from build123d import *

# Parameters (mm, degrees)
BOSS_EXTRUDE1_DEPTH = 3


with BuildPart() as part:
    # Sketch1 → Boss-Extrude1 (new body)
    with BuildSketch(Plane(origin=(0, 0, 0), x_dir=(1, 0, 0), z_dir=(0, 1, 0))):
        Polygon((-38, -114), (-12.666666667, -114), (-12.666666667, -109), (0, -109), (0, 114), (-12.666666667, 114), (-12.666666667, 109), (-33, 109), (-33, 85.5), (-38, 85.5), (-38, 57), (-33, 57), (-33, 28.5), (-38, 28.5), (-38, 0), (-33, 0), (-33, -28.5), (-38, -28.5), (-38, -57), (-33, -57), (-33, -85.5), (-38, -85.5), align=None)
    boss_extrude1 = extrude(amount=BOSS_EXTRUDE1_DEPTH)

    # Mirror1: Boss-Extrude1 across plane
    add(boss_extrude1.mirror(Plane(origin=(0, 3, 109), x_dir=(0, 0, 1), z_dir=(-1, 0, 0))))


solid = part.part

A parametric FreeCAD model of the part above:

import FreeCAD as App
import Part
import Sketcher

V = App.Vector


def add_polygon(sketch, points):
    """Adds a closed chain of lines whose ends are joined by coincident constraints."""
    first, n = sketch.GeometryCount, len(points)
    for a, b in zip(points, points[1:] + points[:1]):
        sketch.addGeometry(Part.LineSegment(App.Vector(*a, 0), App.Vector(*b, 0)), False)
    for i in range(n):
        sketch.addConstraint(Sketcher.Constraint("Coincident", first + i, 2, first + (i + 1) % n, 1))

doc = App.newDocument("Part")
params = doc.addObject("Spreadsheet::Sheet", "Params")
for row, (alias, value) in enumerate([
    ("sketch1_width", "5 mm"),
    ("sketch1_height", "223 mm"),
    ("pad1_length", "3 mm"),
], start=1):
    params.set(f"A{row}", alias)
    params.set(f"B{row}", "=" + value)
    params.setAlias(f"B{row}", alias)

body = doc.addObject("PartDesign::Body", "Body")

sketch1 = doc.addObject("Sketcher::SketchObject", "Sketch")
body.addObject(sketch1)
sketch1.AttachmentSupport = (doc.XZ_Plane, [""])
sketch1.MapMode = "FlatFace"
add_polygon(sketch1, [(-38, 114), (-13, 114), (-13, 109), (0, 109), (0, -114), (-13, -114), (-13, -109), (-33, -109), (-33, -86), (-38, -86), (-38, -57), (-33, -57), (-33, -28), (-38, -28), (-38, 0), (-33, 0), (-33, 28), (-38, 28), (-38, 57), (-33, 57), (-33, 86), (-38, 86)])
sketch1.addConstraint(Sketcher.Constraint("Horizontal", 0))
sketch1.addConstraint(Sketcher.Constraint("Vertical", 1))
sketch1.addConstraint(Sketcher.Constraint("Horizontal", 2))
sketch1.addConstraint(Sketcher.Constraint("Vertical", 3))
sketch1.addConstraint(Sketcher.Constraint("Horizontal", 4))
sketch1.addConstraint(Sketcher.Constraint("Vertical", 5))
sketch1.addConstraint(Sketcher.Constraint("Horizontal", 6))
sketch1.addConstraint(Sketcher.Constraint("Vertical", 7))
sketch1.addConstraint(Sketcher.Constraint("Horizontal", 8))
sketch1.addConstraint(Sketcher.Constraint("Vertical", 9))
sketch1.addConstraint(Sketcher.Constraint("Horizontal", 10))
sketch1.addConstraint(Sketcher.Constraint("Vertical", 11))
sketch1.addConstraint(Sketcher.Constraint("Horizontal", 12))
sketch1.addConstraint(Sketcher.Constraint("Vertical", 13))
sketch1.addConstraint(Sketcher.Constraint("Horizontal", 14))
sketch1.addConstraint(Sketcher.Constraint("Vertical", 15))
sketch1.addConstraint(Sketcher.Constraint("Horizontal", 16))
sketch1.addConstraint(Sketcher.Constraint("Vertical", 17))
sketch1.addConstraint(Sketcher.Constraint("Horizontal", 18))
sketch1.addConstraint(Sketcher.Constraint("Vertical", 19))
sketch1.addConstraint(Sketcher.Constraint("Horizontal", 20))
sketch1.addConstraint(Sketcher.Constraint("Vertical", 21))
sketch1.addConstraint(Sketcher.Constraint("Symmetric", 0, 2, 4, 2, -1))
sketch1.addConstraint(Sketcher.Constraint("Symmetric", 11, 2, 15, 2, -1))
sketch1.addConstraint(Sketcher.Constraint("Symmetric", 9, 2, 17, 2, -1))
sketch1.addConstraint(Sketcher.Constraint("Symmetric", 7, 2, 19, 2, -1))
sketch1.addConstraint(Sketcher.Constraint("PointOnObject", 2, 2, -2))
sketch1.addConstraint(Sketcher.Constraint("PointOnObject", 13, 2, -1))
sketch1.addConstraint(Sketcher.Constraint("Vertical", 7, 2, 10, 2))
sketch1.addConstraint(Sketcher.Constraint("Vertical", 9, 2, 12, 2))
sketch1.addConstraint(Sketcher.Constraint("Vertical", 17, 2, 20, 2))
sketch1.addConstraint(Sketcher.Constraint("Equal", 20, 1))
sketch1.addConstraint(Sketcher.Constraint("Equal", 1, 5))
sketch1.addConstraint(Sketcher.Constraint("Equal", 9, 11))
sketch1.addConstraint(Sketcher.Constraint("Equal", 11, 13))
sketch1.addConstraint(Sketcher.Constraint("Equal", 19, 21))
sketch1.addConstraint(Sketcher.Constraint("DistanceX", 8, 2, 8, 1, 5.0))
sketch1.addConstraint(Sketcher.Constraint("DistanceY", 3, 2, 3, 1, 223.0))
sketch1.addConstraint(Sketcher.Constraint("DistanceX", 6, 2, -1, 1, 33.0))
sketch1.addConstraint(Sketcher.Constraint("DistanceX", 0, 1, 0, 2, 25.333333))
sketch1.setExpression("Constraints[58]", "Params.sketch1_width")
sketch1.setExpression("Constraints[59]", "Params.sketch1_height")
pad1 = doc.addObject("PartDesign::Pad", "Pad")
body.addObject(pad1)
pad1.Profile = sketch1
pad1.setExpression("Length", "Params.pad1_length")
pad1.Reversed = True
doc.recompute()

mirrored = doc.addObject("PartDesign::Mirrored", "Mirrored")
body.addObject(mirrored)
mirrored.Originals = [pad1]
mirrored.MirrorPlane = (doc.YZ_Plane, [""])
body.Tip = mirrored

doc.recompute()
